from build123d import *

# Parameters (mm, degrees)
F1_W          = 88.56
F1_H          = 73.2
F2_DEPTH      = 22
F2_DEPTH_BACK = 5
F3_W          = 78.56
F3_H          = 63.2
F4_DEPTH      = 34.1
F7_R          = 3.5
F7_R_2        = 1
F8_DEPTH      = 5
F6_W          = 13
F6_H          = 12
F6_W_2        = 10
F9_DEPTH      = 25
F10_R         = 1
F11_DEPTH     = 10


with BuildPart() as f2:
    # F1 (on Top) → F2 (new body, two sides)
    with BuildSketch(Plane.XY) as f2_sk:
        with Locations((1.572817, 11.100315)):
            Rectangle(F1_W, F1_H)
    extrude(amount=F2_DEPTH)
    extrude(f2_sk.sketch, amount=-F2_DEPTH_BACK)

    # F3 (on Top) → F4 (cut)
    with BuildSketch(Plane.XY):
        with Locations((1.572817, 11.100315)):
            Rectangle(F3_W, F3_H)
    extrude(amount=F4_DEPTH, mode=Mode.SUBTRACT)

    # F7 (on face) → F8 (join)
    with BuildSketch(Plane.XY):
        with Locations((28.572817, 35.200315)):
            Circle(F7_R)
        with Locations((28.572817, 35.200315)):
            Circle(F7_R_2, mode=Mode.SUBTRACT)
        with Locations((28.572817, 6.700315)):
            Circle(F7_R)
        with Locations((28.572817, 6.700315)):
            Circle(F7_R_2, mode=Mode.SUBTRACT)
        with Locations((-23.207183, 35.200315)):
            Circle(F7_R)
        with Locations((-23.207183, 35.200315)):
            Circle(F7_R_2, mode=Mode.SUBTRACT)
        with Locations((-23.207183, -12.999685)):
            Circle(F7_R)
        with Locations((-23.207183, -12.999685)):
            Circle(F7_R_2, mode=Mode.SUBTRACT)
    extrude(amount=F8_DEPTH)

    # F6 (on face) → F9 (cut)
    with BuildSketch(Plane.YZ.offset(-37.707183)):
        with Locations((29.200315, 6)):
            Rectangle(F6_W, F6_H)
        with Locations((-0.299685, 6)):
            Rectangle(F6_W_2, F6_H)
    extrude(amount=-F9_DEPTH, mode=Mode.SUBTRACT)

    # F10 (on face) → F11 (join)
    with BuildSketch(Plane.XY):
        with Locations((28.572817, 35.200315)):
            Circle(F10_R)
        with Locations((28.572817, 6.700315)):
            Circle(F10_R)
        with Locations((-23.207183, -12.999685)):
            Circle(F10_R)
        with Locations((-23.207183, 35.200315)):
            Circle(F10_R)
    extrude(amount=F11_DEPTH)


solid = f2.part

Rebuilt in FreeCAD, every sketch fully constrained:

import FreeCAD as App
import Part
import Sketcher
from FreeCAD import Vector
Q = App.Units.Quantity

doc = App.newDocument("Part")
params = doc.addObject("Spreadsheet::Sheet", "Params")
for row, (alias, value) in enumerate([
    ("sketch1_height", "73.2 mm"),
    ("sketch1_width", "88.56 mm"),
    ("pad1_length", "22 mm"),
    ("pad1_length2", "5 mm"),
    ("sketch2_height", "63.2 mm"),
    ("sketch2_width", "78.56 mm"),
    ("pocket1_length", "34.1 mm"),
    ("sketch3_diameter", "7 mm"),
    ("sketch3_diameter2", "2 mm"),
    ("pad2_length", "5 mm"),
    ("sketch4_width", "13 mm"),
    ("sketch4_width2", "10 mm"),
    ("sketch4_height", "12 mm"),
    ("pocket2_length", "25 mm"),
    ("sketch5_diameter", "2 mm"),
    ("pad3_length", "10 mm"),
], start=1):
    params.set(f"A{row}", alias)
    params.set(f"B{row}", "=" + value)
    params.setAlias(f"B{row}", alias)

body = doc.addObject("PartDesign::Body", "Body")

# Sketch on XY plane
sketch1 = body.newObject("Sketcher::SketchObject", "Sketch")
sketch1.AttachmentSupport = (doc.getObject("XY_Plane"), [""])
sketch1.MapMode = "FlatFace"
sketch1.addGeometry(Part.LineSegment(Vector(-43, 48, 0), Vector(-43, -25, 0)), False)
sketch1.addGeometry(Part.LineSegment(Vector(-43, -25, 0), Vector(46, -25, 0)), False)
sketch1.addGeometry(Part.LineSegment(Vector(46, -25, 0), Vector(46, 48, 0)), False)
sketch1.addGeometry(Part.LineSegment(Vector(46, 48, 0), Vector(-43, 48, 0)), False)
sketch1.addConstraint(Sketcher.Constraint("Coincident", 0, 2, 1, 1))
sketch1.addConstraint(Sketcher.Constraint("Coincident", 1, 2, 2, 1))
sketch1.addConstraint(Sketcher.Constraint("Coincident", 2, 2, 3, 1))
sketch1.addConstraint(Sketcher.Constraint("Coincident", 3, 2, 0, 1))
sketch1.addConstraint(Sketcher.Constraint("Vertical", 0))
sketch1.addConstraint(Sketcher.Constraint("Horizontal", 1))
sketch1.addConstraint(Sketcher.Constraint("Vertical", 2))
sketch1.addConstraint(Sketcher.Constraint("Horizontal", 3))
sketch1.addConstraint(Sketcher.Constraint("DistanceY", 0, 2, 0, 1, Q("73.2 mm")))
sketch1.addConstraint(Sketcher.Constraint("DistanceX", 1, 1, 1, 2, Q("88.56 mm")))
sketch1.addConstraint(Sketcher.Constraint("DistanceX", 0, 2, -1, 1, Q("42.707183 mm")))
sketch1.addConstraint(Sketcher.Constraint("DistanceY", 0, 2, -1, 1, Q("25.499685 mm")))
sketch1.setExpression("Constraints[8]", "Params.sketch1_height")
sketch1.setExpression("Constraints[9]", "Params.sketch1_width")
pad1 = body.newObject("PartDesign::Pad", "Pad")
pad1.Profile = sketch1
pad1.Type = "TwoLengths"
pad1.setExpression("Length", "Params.pad1_length")
pad1.setExpression("Length2", "Params.pad1_length2")

# Sketch on XY plane
sketch2 = body.newObject("Sketcher::SketchObject", "Sketch001")
sketch2.AttachmentSupport = (doc.getObject("XY_Plane"), [""])
sketch2.MapMode = "FlatFace"
sketch2.addGeometry(Part.LineSegment(Vector(-38, 43, 0), Vector(-38, -20, 0)), False)
sketch2.addGeometry(Part.LineSegment(Vector(-38, -20, 0), Vector(41, -20, 0)), False)
sketch2.addGeometry(Part.LineSegment(Vector(41, -20, 0), Vector(41, 43, 0)), False)
sketch2.addGeometry(Part.LineSegment(Vector(41, 43, 0), Vector(-38, 43, 0)), False)
sketch2.addConstraint(Sketcher.Constraint("Coincident", 0, 2, 1, 1))
sketch2.addConstraint(Sketcher.Constraint("Coincident", 1, 2, 2, 1))
sketch2.addConstraint(Sketcher.Constraint("Coincident", 2, 2, 3, 1))
sketch2.addConstraint(Sketcher.Constraint("Coincident", 3, 2, 0, 1))
sketch2.addConstraint(Sketcher.Constraint("Vertical", 0))
sketch2.addConstraint(Sketcher.Constraint("Horizontal", 1))
sketch2.addConstraint(Sketcher.Constraint("Vertical", 2))
sketch2.addConstraint(Sketcher.Constraint("Horizontal", 3))
sketch2.addConstraint(Sketcher.Constraint("DistanceY", 0, 2, 0, 1, Q("63.2 mm")))
sketch2.addConstraint(Sketcher.Constraint("DistanceX", 1, 1, 1, 2, Q("78.56 mm")))
sketch2.addConstraint(Sketcher.Constraint("DistanceX", 0, 2, -1, 1, Q("37.707183 mm")))
sketch2.addConstraint(Sketcher.Constraint("DistanceY", 0, 2, -1, 1, Q("20.499685 mm")))
sketch2.setExpression("Constraints[8]", "Params.sketch2_height")
sketch2.setExpression("Constraints[9]", "Params.sketch2_width")
pocket1 = body.newObject("PartDesign::Pocket", "Pocket")
pocket1.Profile = sketch2
pocket1.setExpression("Length", "Params.pocket1_length")
pocket1.Reversed = True

# Sketch on XY plane
sketch3 = body.newObject("Sketcher::SketchObject", "Sketch002")
sketch3.AttachmentSupport = (doc.getObject("XY_Plane"), [""])
sketch3.MapMode = "FlatFace"
sketch3.addGeometry(Part.Circle(Vector(28.6, 35.2, 0), Vector(0, 0, 1), 3.5), False)
sketch3.addGeometry(Part.Circle(Vector(28.6, 35.2, 0), Vector(0, 0, 1), 1), False)
sketch3.addGeometry(Part.Circle(Vector(28.6, 6.7, 0), Vector(0, 0, 1), 3.5), False)
sketch3.addGeometry(Part.Circle(Vector(28.6, 6.7, 0), Vector(0, 0, 1), 1), False)
sketch3.addGeometry(Part.Circle(Vector(-23.2, 35.2, 0), Vector(0, 0, 1), 3.5), False)
sketch3.addGeometry(Part.Circle(Vector(-23.2, 35.2, 0), Vector(0, 0, 1), 1), False)
sketch3.addGeometry(Part.Circle(Vector(-23.2, -13, 0), Vector(0, 0, 1), 3.5), False)
sketch3.addGeometry(Part.Circle(Vector(-23.2, -13, 0), Vector(0, 0, 1), 1), False)
sketch3.addConstraint(Sketcher.Constraint("Coincident", 1, 3, 0, 3))
sketch3.addConstraint(Sketcher.Constraint("Coincident", 3, 3, 2, 3))
sketch3.addConstraint(Sketcher.Constraint("Coincident", 5, 3, 4, 3))
sketch3.addConstraint(Sketcher.Constraint("Coincident", 7, 3, 6, 3))
sketch3.addConstraint(Sketcher.Constraint("Equal", 0, 2))
sketch3.addConstraint(Sketcher.Constraint("Equal", 1, 3))
sketch3.addConstraint(Sketcher.Constraint("Equal", 2, 4))
sketch3.addConstraint(Sketcher.Constraint("Equal", 3, 5))
sketch3.addConstraint(Sketcher.Constraint("Equal", 4, 6))
sketch3.addConstraint(Sketcher.Constraint("Equal", 5, 7))
sketch3.addConstraint(Sketcher.Constraint("Horizontal", 1, 3, 4, 3))
sketch3.addConstraint(Sketcher.Constraint("Vertical", 1, 3, 2, 3))
sketch3.addConstraint(Sketcher.Constraint("Vertical", 5, 3, 6, 3))
sketch3.addConstraint(Sketcher.Constraint("Diameter", 0, Q("7 mm")))
sketch3.addConstraint(Sketcher.Constraint("Diameter", 1, Q("2 mm")))
sketch3.addConstraint(Sketcher.Constraint("DistanceY", 2, 3, 0, 3, Q("28.5 mm")))
sketch3.addConstraint(Sketcher.Constraint("DistanceY", 6, 3, 4, 3, Q("48.2 mm")))
sketch3.addConstraint(Sketcher.Constraint("DistanceX", 4, 3, 0, 3, Q("51.78 mm")))
sketch3.addConstraint(Sketcher.Constraint("DistanceX", -1, 1, 0, 3, Q("28.572817 mm")))
sketch3.addConstraint(Sketcher.Constraint("DistanceY", -1, 1, 0, 3, Q("35.200315 mm")))
sketch3.setExpression("Constraints[13]", "Params.sketch3_diameter")
sketch3.setExpression("Constraints[14]", "Params.sketch3_diameter2")
pad2 = body.newObject("PartDesign::Pad", "Pad001")
pad2.Profile = sketch3
pad2.setExpression("Length", "Params.pad2_length")

# Sketch on YZ plane
sketch4 = body.newObject("Sketcher::SketchObject", "Sketch003")
sketch4.AttachmentSupport = (doc.getObject("YZ_Plane"), [""])
sketch4.MapMode = "FlatFace"
sketch4.AttachmentOffset = App.Placement(Vector(0, 0, -37.707183), App.Rotation())
sketch4.addGeometry(Part.LineSegment(Vector(23, 12, 0), Vector(23, 0, 0)), False)
sketch4.addGeometry(Part.LineSegment(Vector(23, 0, 0), Vector(36, 0, 0)), False)
sketch4.addGeometry(Part.LineSegment(Vector(36, 0, 0), Vector(36, 12, 0)), False)
sketch4.addGeometry(Part.LineSegment(Vector(36, 12, 0), Vector(23, 12, 0)), False)
sketch4.addGeometry(Part.LineSegment(Vector(-5, 12, 0), Vector(-5, 0, 0)), False)
sketch4.addGeometry(Part.LineSegment(Vector(-5, 0, 0), Vector(5, 0, 0)), False)
sketch4.addGeometry(Part.LineSegment(Vector(5, 0, 0), Vector(5, 12, 0)), False)
sketch4.addGeometry(Part.LineSegment(Vector(5, 12, 0), Vector(-5, 12, 0)), False)
sketch4.addConstraint(Sketcher.Constraint("Coincident", 0, 2, 1, 1))
sketch4.addConstraint(Sketcher.Constraint("Coincident", 1, 2, 2, 1))
sketch4.addConstraint(Sketcher.Constraint("Coincident", 2, 2, 3, 1))
sketch4.addConstraint(Sketcher.Constraint("Coincident", 3, 2, 0, 1))
sketch4.addConstraint(Sketcher.Constraint("Coincident", 4, 2, 5, 1))
sketch4.addConstraint(Sketcher.Constraint("Coincident", 5, 2, 6, 1))
sketch4.addConstraint(Sketcher.Constraint("Coincident", 6, 2, 7, 1))
sketch4.addConstraint(Sketcher.Constraint("Coincident", 7, 2, 4, 1))
sketch4.addConstraint(Sketcher.Constraint("Vertical", 0))
sketch4.addConstraint(Sketcher.Constraint("Horizontal", 1))
sketch4.addConstraint(Sketcher.Constraint("Vertical", 2))
sketch4.addConstraint(Sketcher.Constraint("Horizontal", 3))
sketch4.addConstraint(Sketcher.Constraint("Vertical", 4))
sketch4.addConstraint(Sketcher.Constraint("Horizontal", 5))
sketch4.addConstraint(Sketcher.Constraint("Vertical", 6))
sketch4.addConstraint(Sketcher.Constraint("Horizontal", 7))
sketch4.addConstraint(Sketcher.Constraint("PointOnObject", 0, 2, -1))
sketch4.addConstraint(Sketcher.Constraint("PointOnObject", 4, 2, -1))
sketch4.addConstraint(Sketcher.Constraint("Horizontal", 3, 2, 6, 2))
sketch4.addConstraint(Sketcher.Constraint("DistanceX", 1, 1, 1, 2, Q("13 mm")))
sketch4.addConstraint(Sketcher.Constraint("DistanceX", 5, 1, 5, 2, Q("10 mm")))
sketch4.addConstraint(Sketcher.Constraint("DistanceY", 0, 2, 0, 1, Q("12 mm")))
sketch4.addConstraint(Sketcher.Constraint("DistanceX", 4, 2, 0, 2, Q("28 mm")))
sketch4.addConstraint(Sketcher.Constraint("DistanceX", -1, 1, 0, 2, Q("22.700315 mm")))
sketch4.setExpression("Constraints[19]", "Params.sketch4_width")
sketch4.setExpression("Constraints[20]", "Params.sketch4_width2")
sketch4.setExpression("Constraints[21]", "Params.sketch4_height")
pocket2 = body.newObject("PartDesign::Pocket", "Pocket001")
pocket2.Profile = sketch4
pocket2.setExpression("Length", "Params.pocket2_length")

# Sketch on XY plane
sketch5 = body.newObject("Sketcher::SketchObject", "Sketch004")
sketch5.AttachmentSupport = (doc.getObject("XY_Plane"), [""])
sketch5.MapMode = "FlatFace"
sketch5.addGeometry(Part.Circle(Vector(28.6, 35.2, 0), Vector(0, 0, 1), 1), False)
sketch5.addGeometry(Part.Circle(Vector(28.6, 6.7, 0), Vector(0, 0, 1), 1), False)
sketch5.addGeometry(Part.Circle(Vector(-23.2, -13, 0), Vector(0, 0, 1), 1), False)
sketch5.addGeometry(Part.Circle(Vector(-23.2, 35.2, 0), Vector(0, 0, 1), 1), False)
sketch5.addConstraint(Sketcher.Constraint("Equal", 0, 1))
sketch5.addConstraint(Sketcher.Constraint("Equal", 1, 2))
sketch5.addConstraint(Sketcher.Constraint("Equal", 2, 3))
sketch5.addConstraint(Sketcher.Constraint("Horizontal", 0, 3, 3, 3))
sketch5.addConstraint(Sketcher.Constraint("Vertical", 0, 3, 1, 3))
sketch5.addConstraint(Sketcher.Constraint("Vertical", 2, 3, 3, 3))
sketch5.addConstraint(Sketcher.Constraint("Diameter", 0, Q("2 mm")))
sketch5.addConstraint(Sketcher.Constraint("DistanceY", 1, 3, 0, 3, Q("28.5 mm")))
sketch5.addConstraint(Sketcher.Constraint("DistanceY", 2, 3, 1, 3, Q("19.7 mm")))
sketch5.addConstraint(Sketcher.Constraint("DistanceX", 2, 3, 1, 3, Q("51.78 mm")))
sketch5.addConstraint(Sketcher.Constraint("DistanceX", -1, 1, 0, 3, Q("28.572817 mm")))
sketch5.addConstraint(Sketcher.Constraint("DistanceY", -1, 1, 0, 3, Q("35.200315 mm")))
sketch5.setExpression("Constraints[6]", "Params.sketch5_diameter")
pad3 = body.newObject("PartDesign::Pad", "Pad002")
pad3.Profile = sketch5
pad3.setExpression("Length", "Params.pad3_length")

doc.recompute()
